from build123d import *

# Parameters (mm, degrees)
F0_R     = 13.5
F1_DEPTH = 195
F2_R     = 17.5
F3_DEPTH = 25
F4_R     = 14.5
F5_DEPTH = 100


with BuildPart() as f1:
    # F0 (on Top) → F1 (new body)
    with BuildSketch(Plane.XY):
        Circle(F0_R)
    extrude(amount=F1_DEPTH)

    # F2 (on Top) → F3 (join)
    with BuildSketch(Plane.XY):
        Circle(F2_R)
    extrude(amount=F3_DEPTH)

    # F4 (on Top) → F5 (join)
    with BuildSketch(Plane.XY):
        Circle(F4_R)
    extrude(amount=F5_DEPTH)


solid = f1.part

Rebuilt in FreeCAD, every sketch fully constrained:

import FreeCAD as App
import Part
import Sketcher
from FreeCAD import Vector
Q = App.Units.Quantity

doc = App.newDocument("Part")
body = doc.addObject("PartDesign::Body", "Body")

# Sketch on XY plane
sketch1 = body.newObject("Sketcher::SketchObject", "Sketch")
sketch1.AttachmentSupport = (doc.getObject("XY_Plane"), [""])
sketch1.MapMode = "FlatFace"
sketch1.addGeometry(Part.Circle(Vector(0, 0, 0), Vector(0, 0, 1), 14), False)
sketch1.addConstraint(Sketcher.Constraint("Coincident", 0, 3, -1, 1))
sketch1.addConstraint(Sketcher.Constraint("Diameter", 0, Q("27 mm")))
pad1 = body.newObject("PartDesign::Pad", "Pad")
pad1.Profile = sketch1
pad1.Length = 195

# Sketch on XY plane
sketch2 = body.newObject("Sketcher::SketchObject", "Sketch001")
sketch2.AttachmentSupport = (doc.getObject("XY_Plane"), [""])
sketch2.MapMode = "FlatFace"
sketch2.addGeometry(Part.Circle(Vector(0, 0, 0), Vector(0, 0, 1), 18), False)
sketch2.addConstraint(Sketcher.Constraint("Coincident", 0, 3, -1, 1))
sketch2.addConstraint(Sketcher.Constraint("Diameter", 0, Q("35 mm")))
pad2 = body.newObject("PartDesign::Pad", "Pad001")
pad2.Profile = sketch2
pad2.Length = 25

# Sketch on XY plane
sketch3 = body.newObject("Sketcher::SketchObject", "Sketch002")
sketch3.AttachmentSupport = (doc.getObject("XY_Plane"), [""])
sketch3.MapMode = "FlatFace"
sketch3.addGeometry(Part.Circle(Vector(0, 0, 0), Vector(0, 0, 1), 14), False)
sketch3.addConstraint(Sketcher.Constraint("Coincident", 0, 3, -1, 1))
sketch3.addConstraint(Sketcher.Constraint("Diameter", 0, Q("29 mm")))
pad3 = body.newObject("PartDesign::Pad", "Pad002")
pad3.Profile = sketch3
pad3.Length = 100

doc.recompute()
